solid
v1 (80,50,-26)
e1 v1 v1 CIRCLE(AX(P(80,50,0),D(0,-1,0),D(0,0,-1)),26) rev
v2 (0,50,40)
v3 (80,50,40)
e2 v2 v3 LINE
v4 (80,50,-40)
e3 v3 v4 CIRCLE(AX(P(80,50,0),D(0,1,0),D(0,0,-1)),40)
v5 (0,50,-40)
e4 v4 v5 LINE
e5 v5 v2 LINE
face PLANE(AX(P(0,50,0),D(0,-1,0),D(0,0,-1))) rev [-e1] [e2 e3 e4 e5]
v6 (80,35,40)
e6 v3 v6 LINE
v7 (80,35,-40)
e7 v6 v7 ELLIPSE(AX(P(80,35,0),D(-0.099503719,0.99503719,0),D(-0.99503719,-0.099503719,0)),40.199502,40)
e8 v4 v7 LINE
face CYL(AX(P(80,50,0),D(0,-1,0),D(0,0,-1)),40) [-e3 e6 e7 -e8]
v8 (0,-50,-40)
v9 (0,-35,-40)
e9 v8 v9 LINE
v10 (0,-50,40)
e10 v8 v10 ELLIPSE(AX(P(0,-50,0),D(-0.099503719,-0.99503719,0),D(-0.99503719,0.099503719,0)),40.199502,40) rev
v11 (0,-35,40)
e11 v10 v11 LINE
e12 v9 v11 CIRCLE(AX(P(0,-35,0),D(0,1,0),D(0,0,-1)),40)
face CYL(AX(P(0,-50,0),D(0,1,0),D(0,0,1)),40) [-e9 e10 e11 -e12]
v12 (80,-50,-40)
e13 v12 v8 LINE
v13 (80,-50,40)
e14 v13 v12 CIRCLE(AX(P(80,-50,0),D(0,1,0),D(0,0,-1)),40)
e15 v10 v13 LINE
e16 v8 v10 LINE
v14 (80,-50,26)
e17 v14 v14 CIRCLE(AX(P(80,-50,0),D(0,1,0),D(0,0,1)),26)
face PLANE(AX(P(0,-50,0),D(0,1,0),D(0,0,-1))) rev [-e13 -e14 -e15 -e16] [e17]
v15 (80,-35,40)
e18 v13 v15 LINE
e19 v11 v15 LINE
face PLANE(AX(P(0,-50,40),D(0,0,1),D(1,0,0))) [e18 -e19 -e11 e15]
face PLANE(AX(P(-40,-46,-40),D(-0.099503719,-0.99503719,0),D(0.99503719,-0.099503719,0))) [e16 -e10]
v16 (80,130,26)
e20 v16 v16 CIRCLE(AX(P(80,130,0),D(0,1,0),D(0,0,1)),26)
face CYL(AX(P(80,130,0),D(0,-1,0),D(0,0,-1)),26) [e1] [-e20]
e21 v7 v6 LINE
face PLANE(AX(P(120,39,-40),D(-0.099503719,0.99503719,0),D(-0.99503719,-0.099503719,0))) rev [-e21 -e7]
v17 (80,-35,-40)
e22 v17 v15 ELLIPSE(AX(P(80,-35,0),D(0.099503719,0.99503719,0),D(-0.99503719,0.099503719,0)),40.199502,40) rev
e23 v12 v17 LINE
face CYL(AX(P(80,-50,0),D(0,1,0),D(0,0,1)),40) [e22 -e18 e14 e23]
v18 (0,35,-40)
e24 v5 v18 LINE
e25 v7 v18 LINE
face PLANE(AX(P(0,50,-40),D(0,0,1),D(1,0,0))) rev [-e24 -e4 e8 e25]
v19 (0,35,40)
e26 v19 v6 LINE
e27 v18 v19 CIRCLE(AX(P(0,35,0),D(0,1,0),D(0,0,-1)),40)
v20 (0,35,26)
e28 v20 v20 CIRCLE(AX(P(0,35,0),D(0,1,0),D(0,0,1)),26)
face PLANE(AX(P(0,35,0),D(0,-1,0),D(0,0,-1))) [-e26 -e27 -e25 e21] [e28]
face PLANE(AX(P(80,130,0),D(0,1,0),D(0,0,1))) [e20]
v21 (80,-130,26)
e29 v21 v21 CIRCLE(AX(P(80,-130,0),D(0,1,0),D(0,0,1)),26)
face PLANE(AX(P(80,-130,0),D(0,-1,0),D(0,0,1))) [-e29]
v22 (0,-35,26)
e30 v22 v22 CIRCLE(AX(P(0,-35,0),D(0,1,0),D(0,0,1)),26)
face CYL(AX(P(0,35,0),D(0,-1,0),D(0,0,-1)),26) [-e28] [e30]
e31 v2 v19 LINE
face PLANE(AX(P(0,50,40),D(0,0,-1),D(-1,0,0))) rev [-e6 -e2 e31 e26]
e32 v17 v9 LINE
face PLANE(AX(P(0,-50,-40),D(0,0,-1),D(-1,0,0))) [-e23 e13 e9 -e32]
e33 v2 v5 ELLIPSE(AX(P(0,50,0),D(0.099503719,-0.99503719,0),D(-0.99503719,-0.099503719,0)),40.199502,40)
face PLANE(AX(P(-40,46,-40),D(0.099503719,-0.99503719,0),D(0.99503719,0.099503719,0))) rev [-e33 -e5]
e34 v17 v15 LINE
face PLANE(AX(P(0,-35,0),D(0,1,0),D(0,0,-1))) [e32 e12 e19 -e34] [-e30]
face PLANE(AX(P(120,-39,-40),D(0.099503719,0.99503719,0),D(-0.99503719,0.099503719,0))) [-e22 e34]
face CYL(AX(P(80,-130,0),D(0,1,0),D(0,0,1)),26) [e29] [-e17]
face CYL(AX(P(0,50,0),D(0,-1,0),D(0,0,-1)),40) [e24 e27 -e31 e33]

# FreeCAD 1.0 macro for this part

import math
import FreeCAD as App
import Part
import Sketcher
from FreeCAD import Vector

doc = App.newDocument("Part")
body = doc.addObject("PartDesign::Body", "Body")

# Sketch on XZ plane
sketch1 = doc.addObject("Sketcher::SketchObject", "Sketch")
body.addObject(sketch1)
sketch1.AttachmentSupport = (doc.XZ_Plane, [""])
sketch1.MapMode = "FlatFace"
sketch1.addGeometry(Part.Circle(Vector(0, 0, 0), Vector(0, 0, 1), 26), False)
sketch1.addConstraint(Sketcher.Constraint("Coincident", 0, 3, -1, 1))
sketch1.addConstraint(Sketcher.Constraint("Diameter", 0, 52.0))
pad1 = doc.addObject("PartDesign::Pad", "Pad")
body.addObject(pad1)
pad1.Profile = sketch1
pad1.Length = 70
pad1.Midplane = True

# Sketch on XZ plane
sketch2 = doc.addObject("Sketcher::SketchObject", "Sketch001")
body.addObject(sketch2)
sketch2.AttachmentSupport = (doc.XZ_Plane, [""])
sketch2.MapMode = "FlatFace"
sketch2.AttachmentOffset = App.Placement(Vector(0, 0, -35), App.Rotation())
sketch2.addGeometry(Part.LineSegment(Vector(80, -40, 0), Vector(0, -40, 0)), False)
sketch2.addGeometry(Part.ArcOfCircle(Part.Circle(Vector(0, 0, 0), Vector(0, 0, 1), 40), math.radians(90), math.radians(270)), False)
sketch2.addGeometry(Part.LineSegment(Vector(0, 40, 0), Vector(80, 40, 0)), False)
sketch2.addGeometry(Part.ArcOfCircle(Part.Circle(Vector(80, 0, 0), Vector(0, 0, 1), 40), math.radians(-90), math.radians(90)), False)
sketch2.addConstraint(Sketcher.Constraint("Tangent", 0, 2, 1, 2))
sketch2.addConstraint(Sketcher.Constraint("Tangent", 1, 1, 2, 1))
sketch2.addConstraint(Sketcher.Constraint("Tangent", 2, 2, 3, 2))
sketch2.addConstraint(Sketcher.Constraint("Tangent", 3, 1, 0, 1))
sketch2.addConstraint(Sketcher.Constraint("Horizontal", 0))
sketch2.addConstraint(Sketcher.Constraint("Horizontal", 2))
sketch2.addConstraint(Sketcher.Constraint("Coincident", 1, 3, -1, 1))
sketch2.addConstraint(Sketcher.Constraint("Radius", 1, 40.0))
sketch2.addConstraint(Sketcher.Constraint("DistanceX", 0, 2, 0, 1, 80.0))
pad2 = doc.addObject("PartDesign::Pad", "Pad001")
body.addObject(pad2)
pad2.Profile = sketch2
pad2.Length = 15
pad2.Reversed = True
doc.recompute()

mirrored = doc.addObject("PartDesign::Mirrored", "Mirrored")
body.addObject(mirrored)
mirrored.Originals = [pad2]
mirrored.MirrorPlane = (doc.XZ_Plane, [""])
body.Tip = mirrored

# Sketch on XZ plane
sketch3 = doc.addObject("Sketcher::SketchObject", "Sketch002")
body.addObject(sketch3)
sketch3.AttachmentSupport = (doc.XZ_Plane, [""])
sketch3.MapMode = "FlatFace"
sketch3.AttachmentOffset = App.Placement(Vector(0, 0, -50), App.Rotation())
sketch3.addGeometry(Part.Circle(Vector(80, 0, 0), Vector(0, 0, 1), 26), False)
sketch3.addConstraint(Sketcher.Constraint("PointOnObject", 0, 3, -1))
sketch3.addConstraint(Sketcher.Constraint("Diameter", 0, 52.0))
sketch3.addConstraint(Sketcher.Constraint("DistanceX", -1, 1, 0, 3, 80.0))
pad3 = doc.addObject("PartDesign::Pad", "Pad002")
body.addObject(pad3)
pad3.Profile = sketch3
pad3.Length = 80
pad3.Reversed = True
doc.recompute()

mirrored2 = doc.addObject("PartDesign::Mirrored", "Mirrored001")
body.addObject(mirrored2)
mirrored2.Originals = [pad3]
mirrored2.MirrorPlane = (doc.XZ_Plane, [""])
body.Tip = mirrored2

# Sketch on XY plane
sketch4 = doc.addObject("Sketcher::SketchObject", "Sketch003")
body.addObject(sketch4)
sketch4.AttachmentSupport = (doc.XY_Plane, [""])
sketch4.MapMode = "FlatFace"
sketch4.addGeometry(Part.LineSegment(Vector(-40, -50, 0), Vector(0, -50, 0)), False)
sketch4.addGeometry(Part.LineSegment(Vector(0, -50, 0), Vector(-40, -46, 0)), False)
sketch4.addGeometry(Part.LineSegment(Vector(-40, -46, 0), Vector(-40, -50, 0)), False)
sketch4.addGeometry(Part.LineSegment(Vector(120, -35, 0), Vector(80, -35, 0)), False)
sketch4.addGeometry(Part.LineSegment(Vector(80, -35, 0), Vector(120, -39, 0)), False)
sketch4.addGeometry(Part.LineSegment(Vector(120, -39, 0), Vector(120, -35, 0)), False)
sketch4.addGeometry(Part.LineSegment(Vector(120, 39, 0), Vector(80, 35, 0)), False)
sketch4.addGeometry(Part.LineSegment(Vector(80, 35, 0), Vector(120, 35, 0)), False)
sketch4.addGeometry(Part.LineSegment(Vector(120, 35, 0), Vector(120, 39, 0)), False)
sketch4.addGeometry(Part.LineSegment(Vector(-40, 46, 0), Vector(0, 50, 0)), False)
sketch4.addGeometry(Part.LineSegment(Vector(0, 50, 0), Vector(-40, 50, 0)), False)
sketch4.addGeometry(Part.LineSegment(Vector(-40, 50, 0), Vector(-40, 46, 0)), False)
sketch4.addConstraint(Sketcher.Constraint("Coincident", 0, 2, 1, 1))
sketch4.addConstraint(Sketcher.Constraint("Coincident", 1, 2, 2, 1))
sketch4.addConstraint(Sketcher.Constraint("Coincident", 2, 2, 0, 1))
sketch4.addConstraint(Sketcher.Constraint("Coincident", 3, 2, 4, 1))
sketch4.addConstraint(Sketcher.Constraint("Coincident", 4, 2, 5, 1))
sketch4.addConstraint(Sketcher.Constraint("Coincident", 5, 2, 3, 1))
sketch4.addConstraint(Sketcher.Constraint("Coincident", 6, 2, 7, 1))
sketch4.addConstraint(Sketcher.Constraint("Coincident", 7, 2, 8, 1))
sketch4.addConstraint(Sketcher.Constraint("Coincident", 8, 2, 6, 1))
sketch4.addConstraint(Sketcher.Constraint("Coincident", 9, 2, 10, 1))
sketch4.addConstraint(Sketcher.Constraint("Coincident", 10, 2, 11, 1))
sketch4.addConstraint(Sketcher.Constraint("Coincident", 11, 2, 9, 1))
sketch4.addConstraint(Sketcher.Constraint("Horizontal", 0))
sketch4.addConstraint(Sketcher.Constraint("Vertical", 2))
sketch4.addConstraint(Sketcher.Constraint("Horizontal", 3))
sketch4.addConstraint(Sketcher.Constraint("Vertical", 5))
sketch4.addConstraint(Sketcher.Constraint("Horizontal", 7))
sketch4.addConstraint(Sketcher.Constraint("Vertical", 8))
sketch4.addConstraint(Sketcher.Constraint("Horizontal", 10))
sketch4.addConstraint(Sketcher.Constraint("Vertical", 11))
sketch4.addConstraint(Sketcher.Constraint("Symmetric", 0, 2, 9, 2, -1, 1))
sketch4.addConstraint(Sketcher.Constraint("Symmetric", 3, 2, 6, 2, -1))
sketch4.addConstraint(Sketcher.Constraint("Symmetric", 4, 2, 8, 2, -1))
sketch4.addConstraint(Sketcher.Constraint("Symmetric", 1, 2, 11, 2, -1))
sketch4.addConstraint(Sketcher.Constraint("PointOnObject", 0, 2, -2))
sketch4.addConstraint(Sketcher.Constraint("Parallel", 1, 4))
sketch4.addConstraint(Sketcher.Constraint("Equal", 0, 3))
sketch4.addConstraint(Sketcher.Constraint("DistanceX", 0, 1, 0, 2, 40.0))
sketch4.addConstraint(Sketcher.Constraint("DistanceY", 2, 2, 2, 1, 4.0))
sketch4.addConstraint(Sketcher.Constraint("DistanceY", 0, 2, -1, 1, 50.0))
sketch4.addConstraint(Sketcher.Constraint("DistanceX", -1, 1, 3, 2, 80.0))
sketch4.addConstraint(Sketcher.Constraint("DistanceY", 3, 2, -1, 1, 35.0))
pocket1 = doc.addObject("PartDesign::Pocket", "Pocket")
body.addObject(pocket1)
pocket1.Profile = sketch4
pocket1.Type = "ThroughAll"
pocket1.Midplane = True

doc.recompute()
